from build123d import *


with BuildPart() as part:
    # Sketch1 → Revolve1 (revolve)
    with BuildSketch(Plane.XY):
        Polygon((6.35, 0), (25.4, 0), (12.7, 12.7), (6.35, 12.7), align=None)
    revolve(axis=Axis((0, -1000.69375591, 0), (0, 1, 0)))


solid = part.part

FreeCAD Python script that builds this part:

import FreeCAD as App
import Part
import Sketcher

V = App.Vector
Q = App.Units.Quantity

doc = App.newDocument("Part")
params = doc.addObject("Spreadsheet::Sheet", "Params")
for row, (alias, value) in enumerate([
    ("sketch1_height", "0.5 in"),
    ("sketch1_width", "0.75 in"),
    ("revolution_angle", "360 deg"),
], start=1):
    params.set(f"A{row}", alias)
    params.set(f"B{row}", "=" + value)
    params.setAlias(f"B{row}", alias)

body = doc.addObject("PartDesign::Body", "Body")

sketch1 = doc.addObject("Sketcher::SketchObject", "Sketch")
body.addObject(sketch1)
sketch1.AttachmentSupport = (doc.XY_Plane, [""])
sketch1.MapMode = "FlatFace"
sketch1.addGeometry([
    Part.LineSegment(V(6, 0, 0), V(25, 0, 0)),
    Part.LineSegment(V(25, 0, 0), V(13, 13, 0)),
    Part.LineSegment(V(13, 13, 0), V(6, 13, 0)),
    Part.LineSegment(V(6, 13, 0), V(6, 0, 0)),
], False)
sketch1.addConstraint([
    Sketcher.Constraint("Coincident", 0, 2, 1, 1),
    Sketcher.Constraint("Coincident", 1, 2, 2, 1),
    Sketcher.Constraint("Coincident", 2, 2, 3, 1),
    Sketcher.Constraint("Coincident", 3, 2, 0, 1),
    Sketcher.Constraint("Horizontal", 0),
    Sketcher.Constraint("Horizontal", 2),
    Sketcher.Constraint("Vertical", 3),
    Sketcher.Constraint("PointOnObject", 0, 2, -1),
    Sketcher.Constraint("DistanceY", 3, 2, 3, 1, Q("0.5 in")),
    Sketcher.Constraint("DistanceX", -1, 1, 0, 2, Q("1 in")),
    Sketcher.Constraint("Angle", 1, Q("135 deg")),
    Sketcher.Constraint("DistanceX", 0, 1, 0, 2, Q("0.75 in")),
])
sketch1.setExpression("Constraints[8]", "Params.sketch1_height")
sketch1.setExpression("Constraints[11]", "Params.sketch1_width")
revolution = doc.addObject("PartDesign::Revolution", "Revolution")
body.addObject(revolution)
revolution.Profile = sketch1
revolution.ReferenceAxis = (sketch1, ["V_Axis"])
revolution.setExpression("Angle", "Params.revolution_angle")

doc.recompute()
